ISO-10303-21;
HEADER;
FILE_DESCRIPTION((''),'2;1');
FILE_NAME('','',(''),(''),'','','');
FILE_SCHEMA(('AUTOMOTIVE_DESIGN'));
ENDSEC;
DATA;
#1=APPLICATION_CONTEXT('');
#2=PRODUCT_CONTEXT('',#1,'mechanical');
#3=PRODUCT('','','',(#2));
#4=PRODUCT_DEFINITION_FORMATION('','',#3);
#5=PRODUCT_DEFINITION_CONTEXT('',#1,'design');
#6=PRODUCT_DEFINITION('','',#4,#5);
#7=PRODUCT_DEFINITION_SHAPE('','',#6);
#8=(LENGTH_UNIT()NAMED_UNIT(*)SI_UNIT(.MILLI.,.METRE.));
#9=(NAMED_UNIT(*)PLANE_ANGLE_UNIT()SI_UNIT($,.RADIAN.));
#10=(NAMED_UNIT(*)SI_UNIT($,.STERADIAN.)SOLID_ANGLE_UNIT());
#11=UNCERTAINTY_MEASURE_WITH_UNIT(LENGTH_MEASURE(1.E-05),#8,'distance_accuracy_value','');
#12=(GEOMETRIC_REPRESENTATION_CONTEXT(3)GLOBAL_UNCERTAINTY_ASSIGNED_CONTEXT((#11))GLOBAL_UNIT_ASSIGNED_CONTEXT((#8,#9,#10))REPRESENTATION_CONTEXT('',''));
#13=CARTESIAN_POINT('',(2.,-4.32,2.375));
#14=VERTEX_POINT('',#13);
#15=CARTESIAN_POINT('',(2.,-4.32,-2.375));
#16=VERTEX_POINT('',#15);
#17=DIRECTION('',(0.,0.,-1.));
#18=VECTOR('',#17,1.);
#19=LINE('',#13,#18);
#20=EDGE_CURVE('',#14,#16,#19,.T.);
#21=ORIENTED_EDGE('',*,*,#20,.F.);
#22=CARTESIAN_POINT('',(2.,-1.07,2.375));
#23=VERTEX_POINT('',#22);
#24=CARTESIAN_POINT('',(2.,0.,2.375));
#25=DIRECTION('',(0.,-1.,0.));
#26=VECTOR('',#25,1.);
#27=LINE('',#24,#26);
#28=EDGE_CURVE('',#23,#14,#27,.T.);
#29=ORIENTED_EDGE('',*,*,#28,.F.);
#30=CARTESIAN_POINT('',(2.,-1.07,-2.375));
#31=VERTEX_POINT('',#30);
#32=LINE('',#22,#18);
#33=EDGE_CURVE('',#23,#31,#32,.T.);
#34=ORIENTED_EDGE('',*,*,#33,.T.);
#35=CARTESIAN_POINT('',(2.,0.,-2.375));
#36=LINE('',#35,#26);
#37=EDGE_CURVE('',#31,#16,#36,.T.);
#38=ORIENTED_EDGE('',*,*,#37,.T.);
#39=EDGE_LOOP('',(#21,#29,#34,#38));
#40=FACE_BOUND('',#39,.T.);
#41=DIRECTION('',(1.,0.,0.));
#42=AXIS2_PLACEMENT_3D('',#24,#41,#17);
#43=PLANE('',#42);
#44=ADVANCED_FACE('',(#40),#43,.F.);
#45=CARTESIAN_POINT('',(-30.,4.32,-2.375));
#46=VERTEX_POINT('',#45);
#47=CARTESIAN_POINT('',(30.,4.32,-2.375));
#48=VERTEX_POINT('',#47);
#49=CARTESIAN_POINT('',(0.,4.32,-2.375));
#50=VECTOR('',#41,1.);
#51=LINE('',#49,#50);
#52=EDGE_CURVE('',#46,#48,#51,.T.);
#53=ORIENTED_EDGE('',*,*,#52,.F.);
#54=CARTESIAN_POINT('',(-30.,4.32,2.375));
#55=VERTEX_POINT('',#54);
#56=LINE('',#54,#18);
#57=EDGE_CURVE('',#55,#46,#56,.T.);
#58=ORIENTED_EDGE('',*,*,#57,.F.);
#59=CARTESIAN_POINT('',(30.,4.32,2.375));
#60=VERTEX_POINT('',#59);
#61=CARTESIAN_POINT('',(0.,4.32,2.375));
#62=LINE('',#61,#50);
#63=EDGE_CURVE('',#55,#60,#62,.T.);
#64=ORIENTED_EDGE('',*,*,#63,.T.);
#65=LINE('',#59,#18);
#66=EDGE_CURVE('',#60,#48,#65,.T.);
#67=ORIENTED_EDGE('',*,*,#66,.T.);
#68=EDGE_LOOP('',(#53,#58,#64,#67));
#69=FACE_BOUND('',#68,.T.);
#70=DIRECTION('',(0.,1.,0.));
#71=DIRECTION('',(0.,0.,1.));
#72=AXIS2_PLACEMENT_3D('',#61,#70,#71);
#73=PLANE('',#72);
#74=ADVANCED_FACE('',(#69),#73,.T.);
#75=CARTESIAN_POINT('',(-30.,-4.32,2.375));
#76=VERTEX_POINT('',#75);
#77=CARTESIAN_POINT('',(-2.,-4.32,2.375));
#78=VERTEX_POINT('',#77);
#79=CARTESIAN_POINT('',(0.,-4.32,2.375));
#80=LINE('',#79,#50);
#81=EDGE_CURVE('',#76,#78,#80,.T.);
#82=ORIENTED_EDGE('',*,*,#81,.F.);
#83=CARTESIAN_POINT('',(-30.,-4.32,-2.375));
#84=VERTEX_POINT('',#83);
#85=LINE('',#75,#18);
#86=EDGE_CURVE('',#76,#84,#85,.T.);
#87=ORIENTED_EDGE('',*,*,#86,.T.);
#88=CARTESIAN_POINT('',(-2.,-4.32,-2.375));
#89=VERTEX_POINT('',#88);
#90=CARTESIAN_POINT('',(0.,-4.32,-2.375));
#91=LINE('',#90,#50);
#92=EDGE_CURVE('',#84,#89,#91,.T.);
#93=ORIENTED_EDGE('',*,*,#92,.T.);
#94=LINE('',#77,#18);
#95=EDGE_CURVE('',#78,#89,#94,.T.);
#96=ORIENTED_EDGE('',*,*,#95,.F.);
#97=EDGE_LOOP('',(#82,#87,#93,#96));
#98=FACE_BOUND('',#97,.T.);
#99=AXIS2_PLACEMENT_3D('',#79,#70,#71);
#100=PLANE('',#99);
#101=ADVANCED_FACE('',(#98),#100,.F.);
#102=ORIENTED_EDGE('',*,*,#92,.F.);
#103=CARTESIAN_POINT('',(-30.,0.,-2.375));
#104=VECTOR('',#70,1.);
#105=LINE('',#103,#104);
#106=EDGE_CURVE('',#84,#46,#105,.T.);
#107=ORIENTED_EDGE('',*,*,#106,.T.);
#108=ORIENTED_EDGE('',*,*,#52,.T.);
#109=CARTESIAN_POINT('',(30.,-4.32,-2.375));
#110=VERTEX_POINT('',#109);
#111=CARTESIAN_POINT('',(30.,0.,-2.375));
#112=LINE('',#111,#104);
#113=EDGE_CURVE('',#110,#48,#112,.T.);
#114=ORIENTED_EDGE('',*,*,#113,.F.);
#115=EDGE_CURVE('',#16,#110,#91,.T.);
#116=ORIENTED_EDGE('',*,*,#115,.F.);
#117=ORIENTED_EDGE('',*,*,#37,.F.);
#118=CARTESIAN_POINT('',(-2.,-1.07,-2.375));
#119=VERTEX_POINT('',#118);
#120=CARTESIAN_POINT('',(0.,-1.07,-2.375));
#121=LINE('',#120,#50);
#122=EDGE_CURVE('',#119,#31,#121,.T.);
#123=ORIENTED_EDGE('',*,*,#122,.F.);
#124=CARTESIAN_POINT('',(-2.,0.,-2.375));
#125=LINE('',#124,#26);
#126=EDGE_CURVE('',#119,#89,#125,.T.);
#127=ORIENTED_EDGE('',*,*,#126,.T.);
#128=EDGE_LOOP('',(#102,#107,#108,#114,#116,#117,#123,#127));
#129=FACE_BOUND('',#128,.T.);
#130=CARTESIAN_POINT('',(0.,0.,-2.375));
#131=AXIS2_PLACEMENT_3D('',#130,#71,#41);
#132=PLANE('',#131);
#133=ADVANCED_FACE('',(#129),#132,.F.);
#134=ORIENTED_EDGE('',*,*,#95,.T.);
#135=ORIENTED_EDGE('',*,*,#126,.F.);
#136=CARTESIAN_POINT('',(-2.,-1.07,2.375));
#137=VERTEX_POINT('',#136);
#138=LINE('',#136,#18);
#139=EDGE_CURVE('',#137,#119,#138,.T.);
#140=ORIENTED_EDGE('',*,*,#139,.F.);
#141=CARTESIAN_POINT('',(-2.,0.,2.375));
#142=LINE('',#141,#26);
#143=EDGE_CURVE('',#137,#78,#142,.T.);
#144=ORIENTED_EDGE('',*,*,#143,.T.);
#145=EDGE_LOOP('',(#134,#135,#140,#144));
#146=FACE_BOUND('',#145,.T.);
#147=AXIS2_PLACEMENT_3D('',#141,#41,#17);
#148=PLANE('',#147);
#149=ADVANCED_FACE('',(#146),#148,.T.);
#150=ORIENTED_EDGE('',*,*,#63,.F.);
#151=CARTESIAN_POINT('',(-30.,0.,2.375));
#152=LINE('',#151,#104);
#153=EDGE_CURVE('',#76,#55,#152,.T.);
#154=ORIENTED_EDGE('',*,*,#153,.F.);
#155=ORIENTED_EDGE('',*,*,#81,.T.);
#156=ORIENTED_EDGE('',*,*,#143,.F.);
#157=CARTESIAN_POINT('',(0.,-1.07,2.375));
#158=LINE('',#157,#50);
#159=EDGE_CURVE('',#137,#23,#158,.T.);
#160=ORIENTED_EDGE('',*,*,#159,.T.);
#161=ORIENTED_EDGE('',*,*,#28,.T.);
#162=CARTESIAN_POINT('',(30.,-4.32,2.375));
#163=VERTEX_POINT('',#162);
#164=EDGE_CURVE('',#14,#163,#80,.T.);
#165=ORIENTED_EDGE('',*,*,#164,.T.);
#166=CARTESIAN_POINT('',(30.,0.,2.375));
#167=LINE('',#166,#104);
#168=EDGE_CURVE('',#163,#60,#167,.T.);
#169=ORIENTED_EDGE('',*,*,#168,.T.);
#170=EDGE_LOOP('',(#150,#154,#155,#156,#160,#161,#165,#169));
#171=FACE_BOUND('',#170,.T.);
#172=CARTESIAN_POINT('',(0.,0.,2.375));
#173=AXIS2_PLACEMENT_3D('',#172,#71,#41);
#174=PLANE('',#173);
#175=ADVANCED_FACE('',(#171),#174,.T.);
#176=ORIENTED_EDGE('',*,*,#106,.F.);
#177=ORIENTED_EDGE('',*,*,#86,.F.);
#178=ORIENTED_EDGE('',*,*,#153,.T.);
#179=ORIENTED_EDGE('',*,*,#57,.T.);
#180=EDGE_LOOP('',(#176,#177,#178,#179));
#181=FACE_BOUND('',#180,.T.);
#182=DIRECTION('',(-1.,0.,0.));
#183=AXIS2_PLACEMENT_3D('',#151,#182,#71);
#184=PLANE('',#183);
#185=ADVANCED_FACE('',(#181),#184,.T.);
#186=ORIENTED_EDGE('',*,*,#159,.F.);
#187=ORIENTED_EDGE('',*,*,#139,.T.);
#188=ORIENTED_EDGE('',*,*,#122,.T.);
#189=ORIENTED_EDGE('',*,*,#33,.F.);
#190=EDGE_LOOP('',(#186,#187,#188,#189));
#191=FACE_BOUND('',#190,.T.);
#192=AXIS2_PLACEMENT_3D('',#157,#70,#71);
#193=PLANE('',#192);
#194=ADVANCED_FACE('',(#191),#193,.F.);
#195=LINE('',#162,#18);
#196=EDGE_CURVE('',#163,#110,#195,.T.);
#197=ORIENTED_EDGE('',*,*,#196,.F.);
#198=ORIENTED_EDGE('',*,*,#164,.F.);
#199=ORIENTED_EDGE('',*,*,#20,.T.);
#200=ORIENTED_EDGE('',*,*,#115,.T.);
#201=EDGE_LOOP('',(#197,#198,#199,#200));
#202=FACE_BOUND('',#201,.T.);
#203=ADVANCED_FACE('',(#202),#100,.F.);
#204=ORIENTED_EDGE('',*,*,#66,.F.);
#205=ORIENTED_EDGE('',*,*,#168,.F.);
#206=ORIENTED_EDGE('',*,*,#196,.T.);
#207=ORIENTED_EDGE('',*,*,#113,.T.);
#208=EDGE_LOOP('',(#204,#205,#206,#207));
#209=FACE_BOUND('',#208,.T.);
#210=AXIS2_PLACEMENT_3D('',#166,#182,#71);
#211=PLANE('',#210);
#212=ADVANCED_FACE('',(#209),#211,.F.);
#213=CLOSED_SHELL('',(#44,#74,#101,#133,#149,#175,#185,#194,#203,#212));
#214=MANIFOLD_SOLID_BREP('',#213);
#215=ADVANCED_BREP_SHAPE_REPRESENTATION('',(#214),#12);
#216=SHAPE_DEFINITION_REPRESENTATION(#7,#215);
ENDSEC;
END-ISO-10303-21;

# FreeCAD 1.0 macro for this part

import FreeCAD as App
import Part
import Sketcher
from FreeCAD import Vector


def add_polygon(sketch, points):
    """Adds a closed chain of lines whose ends are joined by coincident constraints."""
    first, n = sketch.GeometryCount, len(points)
    for a, b in zip(points, points[1:] + points[:1]):
        sketch.addGeometry(Part.LineSegment(App.Vector(*a, 0), App.Vector(*b, 0)), False)
    for i in range(n):
        sketch.addConstraint(Sketcher.Constraint("Coincident", first + i, 2, first + (i + 1) % n, 1))

doc = App.newDocument("Part")
body = doc.addObject("PartDesign::Body", "Body")

# Sketch on XY plane
sketch1 = doc.addObject("Sketcher::SketchObject", "Sketch")
body.addObject(sketch1)
sketch1.AttachmentSupport = (doc.XY_Plane, [""])
sketch1.MapMode = "FlatFace"
add_polygon(sketch1, [(-30, 4.3), (-30, -4.3), (-2, -4.3), (-2, -1.1), (2, -1.1), (2, -4.3), (30, -4.3), (30, 4.3)])  # lines 0-7
sketch1.addConstraint([
    Sketcher.Constraint("Vertical", 0),
    Sketcher.Constraint("Horizontal", 1),
    Sketcher.Constraint("Vertical", 2),
    Sketcher.Constraint("Horizontal", 3),
    Sketcher.Constraint("Vertical", 4),
    Sketcher.Constraint("Horizontal", 5),
    Sketcher.Constraint("Vertical", 6),
    Sketcher.Constraint("Horizontal", 7),
    Sketcher.Constraint("Symmetric", 0, 2, 6, 2, -1, 1),
    Sketcher.Constraint("Symmetric", 1, 2, 4, 2, -2),
    Sketcher.Constraint("DistanceX", 1, 1, 1, 2, 28.0),
    Sketcher.Constraint("DistanceX", 3, 1, 3, 2, 4.0),
    Sketcher.Constraint("DistanceY", 0, 2, 0, 1, 8.64),
    Sketcher.Constraint("DistanceY", 2, 1, 2, 2, 3.25),
])
pad1 = doc.addObject("PartDesign::Pad", "Pad")
body.addObject(pad1)
pad1.Profile = sketch1
pad1.Length = 4.75
pad1.Midplane = True

doc.recompute()
